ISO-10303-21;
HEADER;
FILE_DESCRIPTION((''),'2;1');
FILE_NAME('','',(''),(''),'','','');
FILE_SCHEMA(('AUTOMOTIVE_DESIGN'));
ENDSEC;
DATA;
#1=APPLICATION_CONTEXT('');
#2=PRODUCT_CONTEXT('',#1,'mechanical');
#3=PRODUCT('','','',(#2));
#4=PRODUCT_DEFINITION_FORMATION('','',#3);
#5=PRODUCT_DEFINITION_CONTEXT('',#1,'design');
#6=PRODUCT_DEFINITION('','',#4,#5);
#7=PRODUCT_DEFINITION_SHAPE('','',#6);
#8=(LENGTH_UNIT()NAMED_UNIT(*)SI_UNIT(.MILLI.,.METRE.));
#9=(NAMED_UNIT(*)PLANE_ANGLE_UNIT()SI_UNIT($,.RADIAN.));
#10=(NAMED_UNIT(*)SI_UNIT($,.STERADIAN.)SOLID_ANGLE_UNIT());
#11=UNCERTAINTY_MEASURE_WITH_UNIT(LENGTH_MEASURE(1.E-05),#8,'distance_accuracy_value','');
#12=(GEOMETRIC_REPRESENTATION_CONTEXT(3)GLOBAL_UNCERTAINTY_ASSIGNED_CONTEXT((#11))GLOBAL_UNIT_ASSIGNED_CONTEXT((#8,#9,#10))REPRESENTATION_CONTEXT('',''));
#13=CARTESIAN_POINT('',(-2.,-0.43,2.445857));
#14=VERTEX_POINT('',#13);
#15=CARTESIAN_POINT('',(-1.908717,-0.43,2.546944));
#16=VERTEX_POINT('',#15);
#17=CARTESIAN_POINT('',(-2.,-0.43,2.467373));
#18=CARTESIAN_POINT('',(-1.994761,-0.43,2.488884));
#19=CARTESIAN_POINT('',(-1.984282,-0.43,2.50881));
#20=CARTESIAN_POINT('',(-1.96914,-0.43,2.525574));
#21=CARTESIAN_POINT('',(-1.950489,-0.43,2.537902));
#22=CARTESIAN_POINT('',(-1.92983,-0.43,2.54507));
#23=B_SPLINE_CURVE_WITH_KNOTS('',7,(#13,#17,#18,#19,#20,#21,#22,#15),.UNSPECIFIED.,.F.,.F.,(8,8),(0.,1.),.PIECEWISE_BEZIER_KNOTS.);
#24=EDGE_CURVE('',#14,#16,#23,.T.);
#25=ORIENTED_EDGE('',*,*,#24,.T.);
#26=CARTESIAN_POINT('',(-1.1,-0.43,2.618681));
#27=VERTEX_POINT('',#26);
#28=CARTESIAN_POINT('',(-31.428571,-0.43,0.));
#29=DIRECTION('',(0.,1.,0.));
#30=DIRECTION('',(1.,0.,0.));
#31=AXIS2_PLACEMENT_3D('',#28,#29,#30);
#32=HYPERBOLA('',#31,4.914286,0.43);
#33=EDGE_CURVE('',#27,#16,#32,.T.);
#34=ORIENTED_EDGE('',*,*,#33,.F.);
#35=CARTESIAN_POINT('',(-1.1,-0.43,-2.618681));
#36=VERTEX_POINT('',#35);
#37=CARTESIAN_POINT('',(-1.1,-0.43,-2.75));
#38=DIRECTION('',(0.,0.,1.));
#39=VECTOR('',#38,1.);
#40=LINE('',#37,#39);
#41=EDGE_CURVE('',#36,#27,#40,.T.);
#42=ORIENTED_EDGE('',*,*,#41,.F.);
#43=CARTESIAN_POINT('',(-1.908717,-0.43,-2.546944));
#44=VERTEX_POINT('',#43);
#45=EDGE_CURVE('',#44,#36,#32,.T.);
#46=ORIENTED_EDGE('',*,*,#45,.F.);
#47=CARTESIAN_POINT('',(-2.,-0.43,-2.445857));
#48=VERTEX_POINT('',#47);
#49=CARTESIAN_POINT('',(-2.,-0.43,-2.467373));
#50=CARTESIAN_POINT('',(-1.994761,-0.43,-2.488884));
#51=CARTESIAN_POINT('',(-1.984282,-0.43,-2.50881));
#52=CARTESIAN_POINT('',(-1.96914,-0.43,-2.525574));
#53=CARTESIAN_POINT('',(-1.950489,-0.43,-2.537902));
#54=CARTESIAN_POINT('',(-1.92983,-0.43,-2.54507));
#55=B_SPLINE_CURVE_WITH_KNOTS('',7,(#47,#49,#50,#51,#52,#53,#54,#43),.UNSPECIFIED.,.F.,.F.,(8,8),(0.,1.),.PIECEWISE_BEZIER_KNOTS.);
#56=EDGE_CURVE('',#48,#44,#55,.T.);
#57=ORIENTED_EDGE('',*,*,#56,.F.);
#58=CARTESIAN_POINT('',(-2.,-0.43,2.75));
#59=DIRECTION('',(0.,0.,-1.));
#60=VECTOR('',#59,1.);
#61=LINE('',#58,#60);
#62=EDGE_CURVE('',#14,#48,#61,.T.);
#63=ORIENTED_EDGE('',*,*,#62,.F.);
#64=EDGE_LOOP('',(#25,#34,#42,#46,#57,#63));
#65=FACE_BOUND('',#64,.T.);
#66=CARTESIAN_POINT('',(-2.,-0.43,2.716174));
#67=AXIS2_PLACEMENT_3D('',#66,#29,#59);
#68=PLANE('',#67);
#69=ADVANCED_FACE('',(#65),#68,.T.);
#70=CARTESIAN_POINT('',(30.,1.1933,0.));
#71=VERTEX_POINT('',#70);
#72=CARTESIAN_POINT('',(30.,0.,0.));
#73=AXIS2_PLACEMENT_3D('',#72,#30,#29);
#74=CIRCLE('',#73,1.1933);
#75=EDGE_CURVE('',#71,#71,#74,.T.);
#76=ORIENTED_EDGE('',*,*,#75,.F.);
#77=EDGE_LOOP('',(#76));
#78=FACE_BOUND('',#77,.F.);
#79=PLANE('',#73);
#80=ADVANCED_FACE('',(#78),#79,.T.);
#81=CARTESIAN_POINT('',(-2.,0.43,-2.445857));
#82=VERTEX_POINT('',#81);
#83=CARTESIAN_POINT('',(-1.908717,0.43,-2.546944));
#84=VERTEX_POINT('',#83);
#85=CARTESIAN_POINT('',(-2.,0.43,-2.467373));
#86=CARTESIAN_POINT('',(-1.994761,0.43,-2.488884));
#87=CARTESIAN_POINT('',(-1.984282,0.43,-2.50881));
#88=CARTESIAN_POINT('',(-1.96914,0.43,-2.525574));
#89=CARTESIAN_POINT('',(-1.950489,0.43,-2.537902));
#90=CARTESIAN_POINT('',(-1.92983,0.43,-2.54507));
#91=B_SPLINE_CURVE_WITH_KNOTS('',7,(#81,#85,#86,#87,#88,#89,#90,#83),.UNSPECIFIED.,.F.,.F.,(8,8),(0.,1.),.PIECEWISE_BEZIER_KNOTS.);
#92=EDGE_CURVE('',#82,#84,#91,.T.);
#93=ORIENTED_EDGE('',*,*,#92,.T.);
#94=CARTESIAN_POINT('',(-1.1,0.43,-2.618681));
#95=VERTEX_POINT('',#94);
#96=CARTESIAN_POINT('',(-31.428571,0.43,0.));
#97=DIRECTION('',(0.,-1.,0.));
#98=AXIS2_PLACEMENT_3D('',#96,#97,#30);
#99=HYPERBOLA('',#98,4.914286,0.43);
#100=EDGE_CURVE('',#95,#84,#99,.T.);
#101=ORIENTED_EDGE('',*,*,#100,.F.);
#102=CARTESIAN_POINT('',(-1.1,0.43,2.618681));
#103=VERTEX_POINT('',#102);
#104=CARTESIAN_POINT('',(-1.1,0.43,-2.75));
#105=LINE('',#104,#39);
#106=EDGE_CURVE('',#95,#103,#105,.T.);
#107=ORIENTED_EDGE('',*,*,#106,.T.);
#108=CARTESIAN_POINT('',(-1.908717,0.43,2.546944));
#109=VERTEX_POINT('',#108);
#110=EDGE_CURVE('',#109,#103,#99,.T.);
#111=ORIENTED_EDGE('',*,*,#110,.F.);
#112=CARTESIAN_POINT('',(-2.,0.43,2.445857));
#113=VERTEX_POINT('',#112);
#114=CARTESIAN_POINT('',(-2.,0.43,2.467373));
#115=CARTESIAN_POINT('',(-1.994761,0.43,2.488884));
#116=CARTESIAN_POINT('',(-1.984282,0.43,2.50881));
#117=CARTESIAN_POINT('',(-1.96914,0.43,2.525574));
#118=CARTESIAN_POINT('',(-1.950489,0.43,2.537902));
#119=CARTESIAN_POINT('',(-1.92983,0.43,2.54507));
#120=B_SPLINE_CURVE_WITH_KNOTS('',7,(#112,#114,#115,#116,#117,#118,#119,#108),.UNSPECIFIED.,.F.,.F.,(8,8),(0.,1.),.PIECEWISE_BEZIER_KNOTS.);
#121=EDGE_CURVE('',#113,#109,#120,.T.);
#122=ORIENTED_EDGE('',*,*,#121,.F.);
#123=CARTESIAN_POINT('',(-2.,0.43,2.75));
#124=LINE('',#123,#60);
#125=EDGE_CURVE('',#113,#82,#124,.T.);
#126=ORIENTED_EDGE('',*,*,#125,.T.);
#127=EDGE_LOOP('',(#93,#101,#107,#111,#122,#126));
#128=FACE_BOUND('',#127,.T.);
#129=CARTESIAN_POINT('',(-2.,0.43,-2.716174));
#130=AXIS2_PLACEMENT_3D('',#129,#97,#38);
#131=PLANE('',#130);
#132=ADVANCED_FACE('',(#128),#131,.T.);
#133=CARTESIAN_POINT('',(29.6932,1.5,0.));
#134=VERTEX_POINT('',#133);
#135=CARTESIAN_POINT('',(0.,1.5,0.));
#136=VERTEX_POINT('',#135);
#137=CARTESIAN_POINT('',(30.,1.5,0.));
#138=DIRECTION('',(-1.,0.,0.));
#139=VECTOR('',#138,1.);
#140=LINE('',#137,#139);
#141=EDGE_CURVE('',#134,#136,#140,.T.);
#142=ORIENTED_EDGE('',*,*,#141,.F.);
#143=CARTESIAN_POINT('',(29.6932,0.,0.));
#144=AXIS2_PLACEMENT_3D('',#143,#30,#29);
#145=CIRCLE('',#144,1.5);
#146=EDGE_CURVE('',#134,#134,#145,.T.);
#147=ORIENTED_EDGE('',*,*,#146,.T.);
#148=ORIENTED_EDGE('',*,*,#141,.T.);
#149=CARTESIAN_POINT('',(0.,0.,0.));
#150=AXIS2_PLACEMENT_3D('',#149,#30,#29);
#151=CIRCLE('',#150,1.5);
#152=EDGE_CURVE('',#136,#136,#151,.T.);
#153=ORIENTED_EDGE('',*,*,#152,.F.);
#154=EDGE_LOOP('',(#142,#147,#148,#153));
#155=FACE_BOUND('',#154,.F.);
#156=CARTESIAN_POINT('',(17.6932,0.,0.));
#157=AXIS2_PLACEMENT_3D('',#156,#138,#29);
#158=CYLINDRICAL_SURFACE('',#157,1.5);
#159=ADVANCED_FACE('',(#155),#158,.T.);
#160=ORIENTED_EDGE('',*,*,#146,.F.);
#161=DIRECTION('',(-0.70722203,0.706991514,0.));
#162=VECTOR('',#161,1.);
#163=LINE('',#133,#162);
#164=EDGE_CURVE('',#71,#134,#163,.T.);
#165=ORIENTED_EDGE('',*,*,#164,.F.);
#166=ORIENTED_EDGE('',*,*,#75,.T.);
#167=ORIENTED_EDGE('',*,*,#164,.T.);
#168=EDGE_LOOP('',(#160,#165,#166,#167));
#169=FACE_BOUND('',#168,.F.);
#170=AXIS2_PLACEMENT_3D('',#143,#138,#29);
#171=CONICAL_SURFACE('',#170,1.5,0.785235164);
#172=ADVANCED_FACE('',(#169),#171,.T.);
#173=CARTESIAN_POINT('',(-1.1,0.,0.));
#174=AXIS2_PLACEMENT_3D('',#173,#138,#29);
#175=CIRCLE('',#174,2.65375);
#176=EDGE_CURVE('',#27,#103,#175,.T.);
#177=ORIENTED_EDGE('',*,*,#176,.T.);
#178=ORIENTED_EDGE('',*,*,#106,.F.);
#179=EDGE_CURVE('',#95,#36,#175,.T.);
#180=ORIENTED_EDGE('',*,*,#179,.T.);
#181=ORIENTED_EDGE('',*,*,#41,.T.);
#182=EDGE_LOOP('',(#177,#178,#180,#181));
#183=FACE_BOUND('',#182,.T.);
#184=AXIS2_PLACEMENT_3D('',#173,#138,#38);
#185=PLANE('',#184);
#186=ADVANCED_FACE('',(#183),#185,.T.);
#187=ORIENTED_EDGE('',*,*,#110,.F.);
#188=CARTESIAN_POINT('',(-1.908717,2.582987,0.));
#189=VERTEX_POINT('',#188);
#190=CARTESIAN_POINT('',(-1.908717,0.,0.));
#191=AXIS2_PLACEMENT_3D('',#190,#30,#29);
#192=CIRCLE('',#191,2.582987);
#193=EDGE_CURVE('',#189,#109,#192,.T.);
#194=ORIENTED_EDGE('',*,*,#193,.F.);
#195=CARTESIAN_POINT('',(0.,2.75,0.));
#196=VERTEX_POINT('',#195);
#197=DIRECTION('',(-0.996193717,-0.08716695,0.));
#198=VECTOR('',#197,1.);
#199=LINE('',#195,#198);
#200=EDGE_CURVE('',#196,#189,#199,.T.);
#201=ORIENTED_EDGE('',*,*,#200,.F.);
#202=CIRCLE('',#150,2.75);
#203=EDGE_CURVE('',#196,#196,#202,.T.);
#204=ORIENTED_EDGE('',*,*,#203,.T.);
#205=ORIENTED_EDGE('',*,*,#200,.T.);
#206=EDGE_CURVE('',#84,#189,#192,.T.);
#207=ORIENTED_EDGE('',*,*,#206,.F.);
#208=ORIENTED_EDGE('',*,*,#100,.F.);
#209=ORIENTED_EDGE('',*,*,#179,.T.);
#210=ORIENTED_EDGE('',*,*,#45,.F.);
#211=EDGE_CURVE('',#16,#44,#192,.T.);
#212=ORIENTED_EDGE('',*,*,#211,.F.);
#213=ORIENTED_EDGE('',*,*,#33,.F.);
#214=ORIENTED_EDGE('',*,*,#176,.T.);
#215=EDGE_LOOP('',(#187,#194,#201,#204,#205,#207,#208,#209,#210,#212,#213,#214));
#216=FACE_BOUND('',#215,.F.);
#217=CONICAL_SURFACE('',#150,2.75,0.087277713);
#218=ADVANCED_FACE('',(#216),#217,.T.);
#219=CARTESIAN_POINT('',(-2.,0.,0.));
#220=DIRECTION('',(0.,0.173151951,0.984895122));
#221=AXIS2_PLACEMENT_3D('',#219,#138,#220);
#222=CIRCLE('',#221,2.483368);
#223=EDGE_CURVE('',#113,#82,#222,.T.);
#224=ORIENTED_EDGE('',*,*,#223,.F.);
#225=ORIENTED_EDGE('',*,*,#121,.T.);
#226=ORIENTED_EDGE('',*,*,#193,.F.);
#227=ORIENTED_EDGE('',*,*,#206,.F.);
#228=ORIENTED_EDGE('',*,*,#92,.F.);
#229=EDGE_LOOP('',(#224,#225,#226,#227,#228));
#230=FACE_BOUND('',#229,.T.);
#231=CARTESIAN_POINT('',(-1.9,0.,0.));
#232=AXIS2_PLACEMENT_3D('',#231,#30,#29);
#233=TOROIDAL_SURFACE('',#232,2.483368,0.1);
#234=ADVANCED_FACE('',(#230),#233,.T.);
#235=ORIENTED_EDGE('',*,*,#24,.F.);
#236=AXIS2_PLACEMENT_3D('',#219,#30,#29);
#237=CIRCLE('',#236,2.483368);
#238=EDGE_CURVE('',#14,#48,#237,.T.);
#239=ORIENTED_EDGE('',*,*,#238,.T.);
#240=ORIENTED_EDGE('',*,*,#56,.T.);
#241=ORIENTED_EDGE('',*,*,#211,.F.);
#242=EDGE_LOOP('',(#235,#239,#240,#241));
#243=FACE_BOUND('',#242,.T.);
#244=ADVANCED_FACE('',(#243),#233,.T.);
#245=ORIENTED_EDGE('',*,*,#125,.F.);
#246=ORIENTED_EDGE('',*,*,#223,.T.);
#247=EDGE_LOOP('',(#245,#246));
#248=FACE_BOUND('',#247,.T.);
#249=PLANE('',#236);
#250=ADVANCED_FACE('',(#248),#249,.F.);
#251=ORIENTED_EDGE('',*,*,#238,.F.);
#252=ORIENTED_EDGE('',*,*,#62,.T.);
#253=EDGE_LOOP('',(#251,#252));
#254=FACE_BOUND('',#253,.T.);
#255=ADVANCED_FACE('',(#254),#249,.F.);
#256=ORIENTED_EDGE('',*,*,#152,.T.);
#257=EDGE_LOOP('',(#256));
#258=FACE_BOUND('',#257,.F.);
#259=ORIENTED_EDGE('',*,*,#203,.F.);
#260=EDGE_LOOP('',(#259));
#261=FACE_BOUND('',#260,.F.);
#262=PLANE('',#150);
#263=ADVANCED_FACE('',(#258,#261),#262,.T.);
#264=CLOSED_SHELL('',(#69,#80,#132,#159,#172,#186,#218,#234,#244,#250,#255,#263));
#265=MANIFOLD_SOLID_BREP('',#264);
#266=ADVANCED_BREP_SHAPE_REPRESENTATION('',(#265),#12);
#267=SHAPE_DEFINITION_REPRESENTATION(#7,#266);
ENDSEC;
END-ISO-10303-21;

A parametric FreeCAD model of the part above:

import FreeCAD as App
import Part
import Sketcher

V = App.Vector
Q = App.Units.Quantity


def edges_at(feature, points):
    """Names of the edges that pass closest to the given points."""
    edges = feature.Shape.Edges
    near = lambda p: min(range(len(edges)), key=lambda i: edges[i].distToShape(Part.Vertex(*p))[0])
    return sorted({f"Edge{near(p) + 1}" for p in points})

doc = App.newDocument("Part")
body = doc.addObject("PartDesign::Body", "Body")

sketch1 = body.newObject("Sketcher::SketchObject", "Sketch")
sketch1.AttachmentSupport = (doc.getObject("XY_Plane"), [""])
sketch1.MapMode = "FlatFace"
sketch1.addGeometry(Part.LineSegment(V(-2, 2.575, 0), V(-2, 0, 0)), False)
sketch1.addGeometry(Part.LineSegment(V(-2, 0, 0), V(30, 0, 0)), False)
sketch1.addGeometry(Part.LineSegment(V(30, 0, 0), V(30, 1.5, 0)), False)
sketch1.addGeometry(Part.LineSegment(V(30, 1.5, 0), V(0, 1.5, 0)), False)
sketch1.addGeometry(Part.LineSegment(V(0, 1.5, 0), V(0, 2.75, 0)), False)
sketch1.addGeometry(Part.LineSegment(V(0, 2.75, 0), V(-2, 2.575, 0)), False)
sketch1.addConstraint(Sketcher.Constraint("Coincident", 0, 2, 1, 1))
sketch1.addConstraint(Sketcher.Constraint("Coincident", 1, 2, 2, 1))
sketch1.addConstraint(Sketcher.Constraint("Coincident", 2, 2, 3, 1))
sketch1.addConstraint(Sketcher.Constraint("Coincident", 3, 2, 4, 1))
sketch1.addConstraint(Sketcher.Constraint("Coincident", 4, 2, 5, 1))
sketch1.addConstraint(Sketcher.Constraint("Coincident", 5, 2, 0, 1))
sketch1.addConstraint(Sketcher.Constraint("Vertical", 0))
sketch1.addConstraint(Sketcher.Constraint("Horizontal", 1))
sketch1.addConstraint(Sketcher.Constraint("Vertical", 2))
sketch1.addConstraint(Sketcher.Constraint("Horizontal", 3))
sketch1.addConstraint(Sketcher.Constraint("Vertical", 4))
sketch1.addConstraint(Sketcher.Constraint("PointOnObject", 0, 2, -1))
sketch1.addConstraint(Sketcher.Constraint("PointOnObject", 3, 2, -2))
sketch1.addConstraint(Sketcher.Constraint("DistanceX", 3, 2, 3, 1, Q("30 mm")))
sketch1.addConstraint(Sketcher.Constraint("DistanceX", 0, 2, -1, 1, Q("2 mm")))
sketch1.addConstraint(Sketcher.Constraint("Angle", 5, Q("-174.9994 deg")))
sketch1.addConstraint(Sketcher.Constraint("DistanceY", 2, 1, 2, 2, Q("1.5 mm")))
sketch1.addConstraint(Sketcher.Constraint("DistanceY", 4, 1, 4, 2, Q("1.25 mm")))
revolution = body.newObject("PartDesign::Revolution", "Revolution")
revolution.Profile = sketch1
revolution.ReferenceAxis = (sketch1, ["H_Axis"])
revolution.Angle = 360
doc.recompute()

fillet = body.newObject("PartDesign::Fillet", "Fillet")
fillet.Base = (revolution, edges_at(revolution, [(-2, -2.575, 0)]))
fillet.Radius = 0.1

sketch2 = body.newObject("Sketcher::SketchObject", "Sketch001")
sketch2.AttachmentSupport = (doc.getObject("YZ_Plane"), [""])
sketch2.MapMode = "FlatFace"
sketch2.AttachmentOffset = App.Placement(V(0, 0, -2), App.Rotation())
sketch2.addGeometry(Part.LineSegment(V(-0.43, 2.75, 0), V(0.43, 2.75, 0)), False)
sketch2.addGeometry(Part.LineSegment(V(0.43, 2.75, 0), V(0.43, -2.75, 0)), False)
sketch2.addGeometry(Part.LineSegment(V(0.43, -2.75, 0), V(-0.43, -2.75, 0)), False)
sketch2.addGeometry(Part.LineSegment(V(-0.43, -2.75, 0), V(-0.43, 2.75, 0)), False)
sketch2.addConstraint(Sketcher.Constraint("Coincident", 0, 2, 1, 1))
sketch2.addConstraint(Sketcher.Constraint("Coincident", 1, 2, 2, 1))
sketch2.addConstraint(Sketcher.Constraint("Coincident", 2, 2, 3, 1))
sketch2.addConstraint(Sketcher.Constraint("Coincident", 3, 2, 0, 1))
sketch2.addConstraint(Sketcher.Constraint("Horizontal", 0))
sketch2.addConstraint(Sketcher.Constraint("Vertical", 1))
sketch2.addConstraint(Sketcher.Constraint("Horizontal", 2))
sketch2.addConstraint(Sketcher.Constraint("Vertical", 3))
sketch2.addConstraint(Sketcher.Constraint("Symmetric", 0, 2, 2, 2, -1, 1))
sketch2.addConstraint(Sketcher.Constraint("DistanceY", 1, 2, 1, 1, Q("5.5 mm")))
sketch2.addConstraint(Sketcher.Constraint("DistanceX", 0, 1, 0, 2, Q("0.86 mm")))
pocket1 = body.newObject("PartDesign::Pocket", "Pocket")
pocket1.Profile = sketch2
pocket1.Length = 0.9
pocket1.Reversed = True
doc.recompute()

chamfer = body.newObject("PartDesign::Chamfer", "Chamfer")
chamfer.Base = (pocket1, edges_at(pocket1, [(30, -1.5, 0)]))
chamfer.ChamferType = "Two distances"
chamfer.Size = 0.3067
chamfer.Size2 = 0.3068

doc.recompute()
